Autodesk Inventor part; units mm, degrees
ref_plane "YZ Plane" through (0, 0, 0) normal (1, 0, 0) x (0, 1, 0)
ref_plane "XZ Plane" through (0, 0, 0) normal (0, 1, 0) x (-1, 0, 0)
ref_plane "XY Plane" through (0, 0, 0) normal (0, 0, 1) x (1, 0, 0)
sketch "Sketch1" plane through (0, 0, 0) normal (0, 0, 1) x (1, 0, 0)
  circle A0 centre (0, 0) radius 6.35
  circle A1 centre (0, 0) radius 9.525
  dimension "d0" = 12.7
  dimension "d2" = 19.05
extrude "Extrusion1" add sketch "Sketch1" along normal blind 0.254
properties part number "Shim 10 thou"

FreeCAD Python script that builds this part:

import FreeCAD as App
import Part
import Sketcher
Q = App.Units.Quantity

doc = App.newDocument("Part")
body = doc.addObject("PartDesign::Body", "Body")

sketch1 = body.newObject("Sketcher::SketchObject", "Sketch")
sketch1.AttachmentSupport = (doc.getObject("XY_Plane"), [""])
sketch1.MapMode = "FlatFace"
sketch1.addGeometry([
    Part.Circle(App.Vector(0, 0, 0), App.Vector(0, 0, 1), 10),
    Part.Circle(App.Vector(0, 0, 0), App.Vector(0, 0, 1), 6),
], False)
sketch1.addConstraint([
    Sketcher.Constraint("Coincident", 0, 3, -1, 1),
    Sketcher.Constraint("Coincident", 1, 3, -1, 1),
    Sketcher.Constraint("Diameter", 1, Q("0.5 in")),
    Sketcher.Constraint("Diameter", 0, Q("0.75 in")),
])
pad1 = body.newObject("PartDesign::Pad", "Pad")
pad1.Profile = sketch1
pad1.Length = Q("0.01 in")

doc.recompute()
